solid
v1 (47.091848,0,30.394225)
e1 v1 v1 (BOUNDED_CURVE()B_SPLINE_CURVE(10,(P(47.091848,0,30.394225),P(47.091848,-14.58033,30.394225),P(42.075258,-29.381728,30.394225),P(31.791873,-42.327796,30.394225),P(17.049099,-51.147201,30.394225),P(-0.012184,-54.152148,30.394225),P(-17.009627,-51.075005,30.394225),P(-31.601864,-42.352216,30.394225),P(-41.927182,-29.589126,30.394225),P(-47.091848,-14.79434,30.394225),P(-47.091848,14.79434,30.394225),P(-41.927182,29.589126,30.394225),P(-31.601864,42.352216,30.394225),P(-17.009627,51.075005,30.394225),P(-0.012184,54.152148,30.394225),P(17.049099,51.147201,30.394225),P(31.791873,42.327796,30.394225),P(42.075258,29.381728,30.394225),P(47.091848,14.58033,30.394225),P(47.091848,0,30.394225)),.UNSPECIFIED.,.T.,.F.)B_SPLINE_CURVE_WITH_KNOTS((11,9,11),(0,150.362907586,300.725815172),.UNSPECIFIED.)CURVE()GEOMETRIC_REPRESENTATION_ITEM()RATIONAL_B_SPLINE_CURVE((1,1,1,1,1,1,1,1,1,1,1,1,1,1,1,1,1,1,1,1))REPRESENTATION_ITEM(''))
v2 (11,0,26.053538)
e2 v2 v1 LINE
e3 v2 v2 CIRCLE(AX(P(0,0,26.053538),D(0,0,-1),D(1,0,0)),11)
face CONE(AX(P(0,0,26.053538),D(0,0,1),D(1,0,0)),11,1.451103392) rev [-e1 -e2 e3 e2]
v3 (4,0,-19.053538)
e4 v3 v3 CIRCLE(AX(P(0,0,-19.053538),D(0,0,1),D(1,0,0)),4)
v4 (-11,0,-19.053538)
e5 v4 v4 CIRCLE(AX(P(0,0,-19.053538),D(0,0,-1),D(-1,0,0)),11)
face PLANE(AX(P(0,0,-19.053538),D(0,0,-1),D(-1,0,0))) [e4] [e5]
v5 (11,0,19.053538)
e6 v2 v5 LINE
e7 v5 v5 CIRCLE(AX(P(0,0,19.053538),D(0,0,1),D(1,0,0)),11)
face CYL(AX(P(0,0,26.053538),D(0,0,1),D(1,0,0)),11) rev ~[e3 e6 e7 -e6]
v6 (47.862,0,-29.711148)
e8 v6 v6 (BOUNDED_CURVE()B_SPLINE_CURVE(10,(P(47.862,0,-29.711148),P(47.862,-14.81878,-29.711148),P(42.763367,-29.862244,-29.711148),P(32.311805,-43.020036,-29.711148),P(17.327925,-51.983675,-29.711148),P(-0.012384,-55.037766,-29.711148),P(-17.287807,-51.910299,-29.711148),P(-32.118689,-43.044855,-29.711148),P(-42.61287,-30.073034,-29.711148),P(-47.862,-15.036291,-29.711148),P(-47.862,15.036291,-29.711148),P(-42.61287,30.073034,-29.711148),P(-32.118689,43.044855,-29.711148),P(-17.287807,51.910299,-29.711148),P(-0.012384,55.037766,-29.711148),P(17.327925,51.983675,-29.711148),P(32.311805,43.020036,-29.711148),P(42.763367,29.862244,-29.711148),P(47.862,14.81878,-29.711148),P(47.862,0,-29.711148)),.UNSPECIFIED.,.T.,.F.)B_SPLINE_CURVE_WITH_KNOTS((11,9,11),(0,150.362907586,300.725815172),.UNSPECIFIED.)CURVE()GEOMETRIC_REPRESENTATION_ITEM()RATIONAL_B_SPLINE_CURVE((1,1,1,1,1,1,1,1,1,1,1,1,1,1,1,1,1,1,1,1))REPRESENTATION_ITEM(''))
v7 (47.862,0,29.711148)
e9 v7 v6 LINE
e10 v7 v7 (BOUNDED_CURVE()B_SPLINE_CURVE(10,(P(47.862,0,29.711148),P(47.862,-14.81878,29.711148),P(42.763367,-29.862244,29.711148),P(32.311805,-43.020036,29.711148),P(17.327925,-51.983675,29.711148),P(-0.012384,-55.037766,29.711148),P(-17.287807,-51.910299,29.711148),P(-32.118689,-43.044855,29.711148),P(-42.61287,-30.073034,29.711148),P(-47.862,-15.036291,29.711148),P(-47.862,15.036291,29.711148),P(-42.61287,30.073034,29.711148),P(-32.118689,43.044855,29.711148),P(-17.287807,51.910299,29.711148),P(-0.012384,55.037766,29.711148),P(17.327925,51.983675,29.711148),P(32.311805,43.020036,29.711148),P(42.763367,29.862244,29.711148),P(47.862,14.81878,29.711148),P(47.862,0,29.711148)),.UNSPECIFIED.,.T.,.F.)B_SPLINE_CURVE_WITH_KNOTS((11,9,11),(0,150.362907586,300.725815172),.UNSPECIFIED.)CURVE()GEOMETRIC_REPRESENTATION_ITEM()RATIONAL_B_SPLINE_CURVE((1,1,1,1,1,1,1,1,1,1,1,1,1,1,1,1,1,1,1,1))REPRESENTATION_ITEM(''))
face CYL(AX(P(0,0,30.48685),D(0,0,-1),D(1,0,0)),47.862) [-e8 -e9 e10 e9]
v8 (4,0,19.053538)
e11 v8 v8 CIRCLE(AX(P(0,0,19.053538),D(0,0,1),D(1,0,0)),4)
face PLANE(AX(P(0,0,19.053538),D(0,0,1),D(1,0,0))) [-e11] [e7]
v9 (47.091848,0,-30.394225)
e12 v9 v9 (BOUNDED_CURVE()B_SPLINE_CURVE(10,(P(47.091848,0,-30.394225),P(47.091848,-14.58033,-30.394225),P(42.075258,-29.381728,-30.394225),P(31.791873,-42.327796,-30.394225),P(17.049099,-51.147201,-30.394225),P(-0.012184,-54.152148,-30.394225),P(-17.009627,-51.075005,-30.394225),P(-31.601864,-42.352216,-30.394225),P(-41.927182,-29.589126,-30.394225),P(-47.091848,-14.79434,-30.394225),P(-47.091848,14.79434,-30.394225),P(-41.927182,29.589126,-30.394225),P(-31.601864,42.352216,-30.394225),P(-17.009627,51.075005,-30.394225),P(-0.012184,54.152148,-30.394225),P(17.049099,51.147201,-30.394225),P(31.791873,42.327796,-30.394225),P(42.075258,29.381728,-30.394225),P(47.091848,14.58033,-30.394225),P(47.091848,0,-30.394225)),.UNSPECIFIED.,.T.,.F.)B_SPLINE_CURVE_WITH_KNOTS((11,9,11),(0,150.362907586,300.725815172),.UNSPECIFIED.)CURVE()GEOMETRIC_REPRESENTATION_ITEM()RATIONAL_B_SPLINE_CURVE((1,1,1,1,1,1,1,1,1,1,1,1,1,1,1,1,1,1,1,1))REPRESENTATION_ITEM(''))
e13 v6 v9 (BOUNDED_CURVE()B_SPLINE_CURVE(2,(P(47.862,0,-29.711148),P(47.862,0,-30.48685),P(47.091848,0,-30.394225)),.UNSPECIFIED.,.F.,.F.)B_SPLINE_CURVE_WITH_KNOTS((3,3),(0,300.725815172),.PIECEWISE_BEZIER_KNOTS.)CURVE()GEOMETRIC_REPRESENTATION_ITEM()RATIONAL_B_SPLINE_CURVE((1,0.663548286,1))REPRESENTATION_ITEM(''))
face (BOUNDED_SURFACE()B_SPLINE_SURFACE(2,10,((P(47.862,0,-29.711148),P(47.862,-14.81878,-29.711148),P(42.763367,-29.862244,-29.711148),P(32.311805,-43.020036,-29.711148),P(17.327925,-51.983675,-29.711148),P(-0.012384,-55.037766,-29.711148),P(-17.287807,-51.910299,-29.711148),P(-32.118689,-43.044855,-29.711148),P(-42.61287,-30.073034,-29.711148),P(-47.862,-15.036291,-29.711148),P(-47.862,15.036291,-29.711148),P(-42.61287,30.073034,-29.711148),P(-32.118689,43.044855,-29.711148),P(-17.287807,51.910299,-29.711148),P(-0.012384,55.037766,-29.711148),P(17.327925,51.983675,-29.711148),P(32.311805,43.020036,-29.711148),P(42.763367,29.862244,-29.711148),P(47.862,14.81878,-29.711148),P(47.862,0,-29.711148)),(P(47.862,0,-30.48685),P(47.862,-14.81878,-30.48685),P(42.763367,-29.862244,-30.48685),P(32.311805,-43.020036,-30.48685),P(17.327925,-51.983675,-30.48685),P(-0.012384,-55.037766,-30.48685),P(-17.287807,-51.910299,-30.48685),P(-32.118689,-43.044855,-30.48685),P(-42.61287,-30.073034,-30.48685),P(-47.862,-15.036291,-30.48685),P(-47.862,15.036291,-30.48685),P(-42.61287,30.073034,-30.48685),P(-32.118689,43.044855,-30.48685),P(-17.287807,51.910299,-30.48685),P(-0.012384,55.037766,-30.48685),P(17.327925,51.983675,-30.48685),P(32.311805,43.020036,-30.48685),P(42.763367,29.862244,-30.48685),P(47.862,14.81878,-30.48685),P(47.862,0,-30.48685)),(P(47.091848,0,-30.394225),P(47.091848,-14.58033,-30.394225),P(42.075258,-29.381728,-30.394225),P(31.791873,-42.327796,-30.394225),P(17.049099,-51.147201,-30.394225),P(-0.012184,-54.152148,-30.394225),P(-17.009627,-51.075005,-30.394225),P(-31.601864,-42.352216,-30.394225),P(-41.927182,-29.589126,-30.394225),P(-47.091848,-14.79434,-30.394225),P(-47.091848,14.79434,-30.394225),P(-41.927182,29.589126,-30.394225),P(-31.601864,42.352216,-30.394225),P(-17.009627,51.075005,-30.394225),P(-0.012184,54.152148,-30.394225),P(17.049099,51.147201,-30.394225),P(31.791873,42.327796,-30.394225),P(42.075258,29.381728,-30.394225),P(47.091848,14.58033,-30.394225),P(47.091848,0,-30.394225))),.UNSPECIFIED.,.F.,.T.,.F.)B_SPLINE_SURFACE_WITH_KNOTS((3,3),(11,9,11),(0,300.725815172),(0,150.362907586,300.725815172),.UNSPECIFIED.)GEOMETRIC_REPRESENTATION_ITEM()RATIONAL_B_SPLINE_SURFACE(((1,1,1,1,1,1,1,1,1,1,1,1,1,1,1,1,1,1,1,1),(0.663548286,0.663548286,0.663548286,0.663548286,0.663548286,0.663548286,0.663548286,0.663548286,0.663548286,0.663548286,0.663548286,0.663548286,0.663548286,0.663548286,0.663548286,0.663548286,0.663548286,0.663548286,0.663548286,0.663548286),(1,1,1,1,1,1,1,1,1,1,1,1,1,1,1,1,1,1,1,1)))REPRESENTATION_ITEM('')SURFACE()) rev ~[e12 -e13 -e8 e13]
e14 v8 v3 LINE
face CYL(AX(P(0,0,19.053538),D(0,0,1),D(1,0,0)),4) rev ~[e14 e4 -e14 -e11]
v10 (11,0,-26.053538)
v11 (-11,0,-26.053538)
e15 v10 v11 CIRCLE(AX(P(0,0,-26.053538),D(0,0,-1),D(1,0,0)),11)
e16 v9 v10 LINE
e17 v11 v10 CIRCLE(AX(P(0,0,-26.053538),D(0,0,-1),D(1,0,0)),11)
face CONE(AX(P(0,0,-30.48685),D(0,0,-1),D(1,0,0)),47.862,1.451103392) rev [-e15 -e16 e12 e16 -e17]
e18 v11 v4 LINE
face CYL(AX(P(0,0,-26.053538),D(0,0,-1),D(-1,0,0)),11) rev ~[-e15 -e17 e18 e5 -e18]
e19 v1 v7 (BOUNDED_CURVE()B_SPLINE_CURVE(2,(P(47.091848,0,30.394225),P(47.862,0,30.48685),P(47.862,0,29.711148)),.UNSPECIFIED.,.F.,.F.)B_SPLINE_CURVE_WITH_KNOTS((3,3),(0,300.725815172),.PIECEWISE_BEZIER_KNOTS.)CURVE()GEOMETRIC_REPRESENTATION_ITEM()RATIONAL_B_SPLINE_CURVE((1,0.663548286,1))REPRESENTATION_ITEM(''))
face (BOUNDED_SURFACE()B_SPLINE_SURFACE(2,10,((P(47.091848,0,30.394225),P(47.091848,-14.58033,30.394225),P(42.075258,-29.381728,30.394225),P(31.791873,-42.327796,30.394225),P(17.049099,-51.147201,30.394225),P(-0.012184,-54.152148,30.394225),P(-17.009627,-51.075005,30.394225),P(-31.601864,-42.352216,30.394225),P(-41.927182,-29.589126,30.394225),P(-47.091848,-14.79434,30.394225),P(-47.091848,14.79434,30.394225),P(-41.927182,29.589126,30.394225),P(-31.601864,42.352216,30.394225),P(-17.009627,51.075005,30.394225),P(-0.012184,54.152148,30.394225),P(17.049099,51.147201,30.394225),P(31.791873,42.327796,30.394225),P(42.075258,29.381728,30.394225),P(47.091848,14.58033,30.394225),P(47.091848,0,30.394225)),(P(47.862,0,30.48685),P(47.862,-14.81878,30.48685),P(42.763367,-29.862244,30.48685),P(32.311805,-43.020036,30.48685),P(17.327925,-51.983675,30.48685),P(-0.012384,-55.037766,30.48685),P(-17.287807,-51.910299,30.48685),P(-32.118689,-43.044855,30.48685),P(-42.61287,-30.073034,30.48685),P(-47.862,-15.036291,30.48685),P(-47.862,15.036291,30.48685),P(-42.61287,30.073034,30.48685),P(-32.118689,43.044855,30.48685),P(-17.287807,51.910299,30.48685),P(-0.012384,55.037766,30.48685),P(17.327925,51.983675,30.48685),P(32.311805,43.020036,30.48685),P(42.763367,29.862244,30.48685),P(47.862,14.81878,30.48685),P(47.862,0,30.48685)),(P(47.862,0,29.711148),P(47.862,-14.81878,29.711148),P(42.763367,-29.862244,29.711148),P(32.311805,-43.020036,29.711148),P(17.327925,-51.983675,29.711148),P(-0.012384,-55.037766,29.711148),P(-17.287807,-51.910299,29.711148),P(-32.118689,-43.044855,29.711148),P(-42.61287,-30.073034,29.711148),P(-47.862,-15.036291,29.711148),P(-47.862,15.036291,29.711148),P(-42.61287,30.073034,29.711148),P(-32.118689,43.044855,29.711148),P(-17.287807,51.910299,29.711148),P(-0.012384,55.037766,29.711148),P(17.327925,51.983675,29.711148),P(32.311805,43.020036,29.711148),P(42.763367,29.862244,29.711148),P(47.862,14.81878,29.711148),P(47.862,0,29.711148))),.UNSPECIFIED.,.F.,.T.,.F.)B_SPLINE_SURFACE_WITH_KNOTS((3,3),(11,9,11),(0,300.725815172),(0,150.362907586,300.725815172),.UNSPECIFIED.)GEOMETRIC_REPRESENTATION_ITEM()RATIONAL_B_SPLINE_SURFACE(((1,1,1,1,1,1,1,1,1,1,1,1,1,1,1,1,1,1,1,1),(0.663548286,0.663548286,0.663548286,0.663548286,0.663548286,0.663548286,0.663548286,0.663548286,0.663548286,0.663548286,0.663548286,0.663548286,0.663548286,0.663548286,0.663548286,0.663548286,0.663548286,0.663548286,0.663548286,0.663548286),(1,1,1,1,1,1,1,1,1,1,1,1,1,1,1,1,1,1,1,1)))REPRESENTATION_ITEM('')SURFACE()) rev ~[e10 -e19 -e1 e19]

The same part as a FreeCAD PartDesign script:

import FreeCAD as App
import Part
import Sketcher


def edges_at(feature, points):
    """Names of the edges that pass closest to the given points."""
    edges = feature.Shape.Edges
    near = lambda p: min(range(len(edges)), key=lambda i: edges[i].distToShape(Part.Vertex(*p))[0])
    return sorted({f"Edge{near(p) + 1}" for p in points})


def add_polygon(sketch, points):
    """Adds a closed chain of lines whose ends are joined by coincident constraints."""
    first, n = sketch.GeometryCount, len(points)
    for a, b in zip(points, points[1:] + points[:1]):
        sketch.addGeometry(Part.LineSegment(App.Vector(*a, 0), App.Vector(*b, 0)), False)
    for i in range(n):
        sketch.addConstraint(Sketcher.Constraint("Coincident", first + i, 2, first + (i + 1) % n, 1))

doc = App.newDocument("Part")
body = doc.addObject("PartDesign::Body", "Body")

sketch1 = doc.addObject("Sketcher::SketchObject", "Sketch")
body.addObject(sketch1)
sketch1.AttachmentSupport = (doc.XZ_Plane, [""])
sketch1.MapMode = "FlatFace"
add_polygon(sketch1, [(0, -26), (0, 26), (11, 26), (48, 30), (48, -30), (11, -26)])
sketch1.addConstraint(Sketcher.Constraint("Vertical", 0))
sketch1.addConstraint(Sketcher.Constraint("Horizontal", 1))
sketch1.addConstraint(Sketcher.Constraint("Vertical", 3))
sketch1.addConstraint(Sketcher.Constraint("Horizontal", 5))
sketch1.addConstraint(Sketcher.Constraint("Symmetric", 0, 2, 5, 2, -1, 1))
sketch1.addConstraint(Sketcher.Constraint("Vertical", 1, 2, 4, 2))
sketch1.addConstraint(Sketcher.Constraint("Equal", 2, 4))
sketch1.addConstraint(Sketcher.Constraint("DistanceX", 1, 1, 1, 2, 11.0))
sketch1.addConstraint(Sketcher.Constraint("DistanceY", 3, 2, 3, 1, 60.9737))
sketch1.addConstraint(Sketcher.Constraint("DistanceX", -1, 1, 2, 2, 47.862))
sketch1.addConstraint(Sketcher.Constraint("DistanceY", 0, 1, 0, 2, 52.107075))
revolution = doc.addObject("PartDesign::Revolution", "Revolution")
body.addObject(revolution)
revolution.Profile = sketch1
revolution.ReferenceAxis = (sketch1, ["V_Axis"])
revolution.Angle = 360

sketch2 = doc.addObject("Sketcher::SketchObject", "Sketch001")
body.addObject(sketch2)
sketch2.AttachmentSupport = (doc.XY_Plane, [""])
sketch2.MapMode = "FlatFace"
sketch2.AttachmentOffset = App.Placement(App.Vector(0, 0, 26.053538), App.Rotation())
sketch2.addGeometry(Part.Circle(App.Vector(0, 0, 0), App.Vector(0, 0, 1), 11), False)
sketch2.addConstraint(Sketcher.Constraint("Coincident", 0, 3, -1, 1))
sketch2.addConstraint(Sketcher.Constraint("Diameter", 0, 22.0))
pocket1 = doc.addObject("PartDesign::Pocket", "Pocket")
body.addObject(pocket1)
pocket1.Profile = sketch2
pocket1.Length = 7

sketch3 = doc.addObject("Sketcher::SketchObject", "Sketch002")
body.addObject(sketch3)
sketch3.AttachmentSupport = (doc.XY_Plane, [""])
sketch3.MapMode = "FlatFace"
sketch3.AttachmentOffset = App.Placement(App.Vector(0, 0, 19.053538), App.Rotation())
sketch3.addGeometry(Part.Circle(App.Vector(0, 0, 0), App.Vector(0, 0, 1), 4), False)
sketch3.addConstraint(Sketcher.Constraint("Coincident", 0, 3, -1, 1))
sketch3.addConstraint(Sketcher.Constraint("Diameter", 0, 8.0))
pocket2 = doc.addObject("PartDesign::Pocket", "Pocket001")
body.addObject(pocket2)
pocket2.Profile = sketch3
pocket2.Type = "ThroughAll"

sketch4 = doc.addObject("Sketcher::SketchObject", "Sketch003")
body.addObject(sketch4)
sketch4.AttachmentSupport = (doc.XY_Plane, [""])
sketch4.MapMode = "FlatFace"
sketch4.AttachmentOffset = App.Placement(App.Vector(0, 0, -26.053538), App.Rotation())
sketch4.addGeometry(Part.Circle(App.Vector(0, 0, 0), App.Vector(0, 0, 1), 11), False)
sketch4.addConstraint(Sketcher.Constraint("Coincident", 0, 3, -1, 1))
sketch4.addConstraint(Sketcher.Constraint("Diameter", 0, 22.0))
pocket3 = doc.addObject("PartDesign::Pocket", "Pocket002")
body.addObject(pocket3)
pocket3.Profile = sketch4
pocket3.Length = 7
pocket3.Reversed = True
doc.recompute()

fillet = doc.addObject("PartDesign::Fillet", "Fillet")
body.addObject(fillet)
fillet.Base = (pocket3, edges_at(pocket3, [(-47.862, 0, -30.487), (-47.862, 0, 30.487)]))
fillet.Radius = 0.688

doc.recompute()
